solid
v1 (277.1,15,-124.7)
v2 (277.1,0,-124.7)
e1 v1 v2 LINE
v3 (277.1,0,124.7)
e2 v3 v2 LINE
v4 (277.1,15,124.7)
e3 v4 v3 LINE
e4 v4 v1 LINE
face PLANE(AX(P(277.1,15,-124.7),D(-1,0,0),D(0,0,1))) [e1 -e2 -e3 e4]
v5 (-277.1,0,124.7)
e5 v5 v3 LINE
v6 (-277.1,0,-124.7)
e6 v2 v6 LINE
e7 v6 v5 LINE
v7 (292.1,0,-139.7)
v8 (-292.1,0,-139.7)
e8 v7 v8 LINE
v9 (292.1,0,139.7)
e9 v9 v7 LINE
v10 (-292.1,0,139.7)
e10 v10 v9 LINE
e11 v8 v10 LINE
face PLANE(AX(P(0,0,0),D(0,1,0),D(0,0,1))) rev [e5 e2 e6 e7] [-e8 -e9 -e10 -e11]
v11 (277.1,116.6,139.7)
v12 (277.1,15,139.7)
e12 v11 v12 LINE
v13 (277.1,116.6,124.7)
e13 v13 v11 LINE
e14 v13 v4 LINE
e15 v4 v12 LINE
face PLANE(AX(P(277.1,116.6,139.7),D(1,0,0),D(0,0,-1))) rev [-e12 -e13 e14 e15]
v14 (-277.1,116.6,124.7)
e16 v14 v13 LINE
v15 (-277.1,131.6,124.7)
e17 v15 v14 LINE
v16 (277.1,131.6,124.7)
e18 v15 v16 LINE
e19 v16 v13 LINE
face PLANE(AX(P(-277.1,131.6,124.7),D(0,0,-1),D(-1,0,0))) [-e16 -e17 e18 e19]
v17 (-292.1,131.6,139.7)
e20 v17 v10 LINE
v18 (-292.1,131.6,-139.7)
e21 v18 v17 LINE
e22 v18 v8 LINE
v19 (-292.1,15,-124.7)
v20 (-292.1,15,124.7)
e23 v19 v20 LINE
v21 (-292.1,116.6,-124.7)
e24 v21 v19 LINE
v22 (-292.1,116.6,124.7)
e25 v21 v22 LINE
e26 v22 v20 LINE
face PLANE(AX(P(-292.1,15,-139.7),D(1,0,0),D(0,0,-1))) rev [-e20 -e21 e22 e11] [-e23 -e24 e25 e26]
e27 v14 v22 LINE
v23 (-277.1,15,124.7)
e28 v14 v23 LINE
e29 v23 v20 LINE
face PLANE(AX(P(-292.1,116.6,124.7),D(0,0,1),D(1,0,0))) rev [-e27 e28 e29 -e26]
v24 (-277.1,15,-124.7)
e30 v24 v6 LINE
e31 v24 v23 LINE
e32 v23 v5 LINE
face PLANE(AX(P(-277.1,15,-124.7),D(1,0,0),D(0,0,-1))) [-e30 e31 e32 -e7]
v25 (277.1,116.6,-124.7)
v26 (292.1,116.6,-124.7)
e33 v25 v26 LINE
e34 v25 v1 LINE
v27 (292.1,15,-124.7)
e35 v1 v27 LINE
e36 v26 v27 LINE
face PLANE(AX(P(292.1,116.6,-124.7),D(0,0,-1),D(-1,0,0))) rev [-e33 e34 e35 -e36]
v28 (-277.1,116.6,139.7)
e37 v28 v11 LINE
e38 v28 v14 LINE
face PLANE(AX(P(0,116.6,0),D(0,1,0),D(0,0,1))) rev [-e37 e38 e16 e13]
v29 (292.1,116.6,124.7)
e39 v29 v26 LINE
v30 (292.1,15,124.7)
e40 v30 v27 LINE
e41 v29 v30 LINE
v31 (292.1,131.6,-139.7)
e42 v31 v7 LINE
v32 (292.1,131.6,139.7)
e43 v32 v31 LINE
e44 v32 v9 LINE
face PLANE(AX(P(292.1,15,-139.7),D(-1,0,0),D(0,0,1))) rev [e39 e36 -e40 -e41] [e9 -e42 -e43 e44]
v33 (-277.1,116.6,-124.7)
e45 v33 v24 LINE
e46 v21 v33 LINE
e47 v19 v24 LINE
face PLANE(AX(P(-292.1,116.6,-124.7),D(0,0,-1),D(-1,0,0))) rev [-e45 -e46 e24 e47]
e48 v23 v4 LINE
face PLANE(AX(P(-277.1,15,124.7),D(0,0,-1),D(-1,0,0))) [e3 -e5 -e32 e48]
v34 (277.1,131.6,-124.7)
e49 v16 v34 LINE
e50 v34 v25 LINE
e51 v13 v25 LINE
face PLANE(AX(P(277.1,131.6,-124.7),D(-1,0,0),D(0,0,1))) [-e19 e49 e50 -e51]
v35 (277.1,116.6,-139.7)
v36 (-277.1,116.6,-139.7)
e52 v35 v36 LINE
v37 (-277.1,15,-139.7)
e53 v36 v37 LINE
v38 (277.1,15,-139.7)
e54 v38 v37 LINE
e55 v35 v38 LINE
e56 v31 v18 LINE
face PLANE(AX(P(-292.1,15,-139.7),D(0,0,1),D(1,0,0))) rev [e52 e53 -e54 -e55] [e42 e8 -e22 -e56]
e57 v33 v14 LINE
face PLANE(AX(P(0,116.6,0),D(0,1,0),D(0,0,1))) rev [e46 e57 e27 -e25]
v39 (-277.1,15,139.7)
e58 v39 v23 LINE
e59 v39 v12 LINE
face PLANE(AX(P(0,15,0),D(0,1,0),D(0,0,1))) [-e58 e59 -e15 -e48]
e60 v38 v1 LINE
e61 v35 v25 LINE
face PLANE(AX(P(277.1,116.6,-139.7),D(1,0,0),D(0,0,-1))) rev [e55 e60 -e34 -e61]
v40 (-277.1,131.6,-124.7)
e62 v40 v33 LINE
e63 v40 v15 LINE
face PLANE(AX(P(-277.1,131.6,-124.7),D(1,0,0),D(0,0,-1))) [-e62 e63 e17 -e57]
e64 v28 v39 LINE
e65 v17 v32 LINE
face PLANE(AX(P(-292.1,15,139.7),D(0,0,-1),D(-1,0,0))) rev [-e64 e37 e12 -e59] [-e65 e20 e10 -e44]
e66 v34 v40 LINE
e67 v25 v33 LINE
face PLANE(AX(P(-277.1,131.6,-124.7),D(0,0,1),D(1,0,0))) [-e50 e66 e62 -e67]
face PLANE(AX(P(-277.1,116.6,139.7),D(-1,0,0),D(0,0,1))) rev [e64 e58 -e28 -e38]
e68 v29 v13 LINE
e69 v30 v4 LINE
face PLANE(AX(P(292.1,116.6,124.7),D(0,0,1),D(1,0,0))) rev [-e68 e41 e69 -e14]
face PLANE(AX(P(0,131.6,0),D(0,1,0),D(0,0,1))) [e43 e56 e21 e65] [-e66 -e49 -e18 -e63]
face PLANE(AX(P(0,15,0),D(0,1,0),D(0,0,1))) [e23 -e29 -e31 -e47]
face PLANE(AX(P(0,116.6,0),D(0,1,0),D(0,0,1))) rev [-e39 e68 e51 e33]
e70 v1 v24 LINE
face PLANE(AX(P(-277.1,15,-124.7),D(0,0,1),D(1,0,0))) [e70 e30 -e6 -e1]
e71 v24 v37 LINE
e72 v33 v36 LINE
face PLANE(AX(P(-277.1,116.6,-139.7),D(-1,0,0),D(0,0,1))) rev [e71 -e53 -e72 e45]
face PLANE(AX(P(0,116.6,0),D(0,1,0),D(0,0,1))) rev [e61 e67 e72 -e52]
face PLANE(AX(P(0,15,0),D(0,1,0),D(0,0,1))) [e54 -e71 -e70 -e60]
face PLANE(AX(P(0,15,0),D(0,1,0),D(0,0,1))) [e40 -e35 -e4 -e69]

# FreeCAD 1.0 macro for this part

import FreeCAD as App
import Part
import Sketcher


def add_polygon(sketch, points):
    """Adds a closed chain of lines whose ends are joined by coincident constraints."""
    first, n = sketch.GeometryCount, len(points)
    for a, b in zip(points, points[1:] + points[:1]):
        sketch.addGeometry(Part.LineSegment(App.Vector(*a, 0), App.Vector(*b, 0)), False)
    for i in range(n):
        sketch.addConstraint(Sketcher.Constraint("Coincident", first + i, 2, first + (i + 1) % n, 1))

doc = App.newDocument("Part")
body = doc.addObject("PartDesign::Body", "Body")

sketch1 = body.newObject("Sketcher::SketchObject", "Sketch")
sketch1.AttachmentSupport = (doc.getObject("XZ_Plane"), [""])
sketch1.MapMode = "FlatFace"
add_polygon(sketch1, [(-292.1, -139.7), (-292.1, 139.7), (292.1, 139.7), (292.1, -139.7)])
add_polygon(sketch1, [(277.1, 124.7), (-277.1, 124.7), (-277.1, -124.7), (277.1, -124.7)])
sketch1.addConstraint(Sketcher.Constraint("Vertical", 0))
sketch1.addConstraint(Sketcher.Constraint("Horizontal", 1))
sketch1.addConstraint(Sketcher.Constraint("Vertical", 2))
sketch1.addConstraint(Sketcher.Constraint("Horizontal", 3))
sketch1.addConstraint(Sketcher.Constraint("Horizontal", 4))
sketch1.addConstraint(Sketcher.Constraint("Vertical", 5))
sketch1.addConstraint(Sketcher.Constraint("Horizontal", 6))
sketch1.addConstraint(Sketcher.Constraint("Vertical", 7))
sketch1.addConstraint(Sketcher.Constraint("Symmetric", 0, 2, 2, 2, -1, 1))
sketch1.addConstraint(Sketcher.Constraint("Symmetric", 4, 2, 6, 2, -1, 1))
sketch1.addConstraint(Sketcher.Constraint("DistanceX", 1, 1, 1, 2, 584.2))
sketch1.addConstraint(Sketcher.Constraint("DistanceX", 4, 2, 4, 1, 554.2))
sketch1.addConstraint(Sketcher.Constraint("DistanceY", 0, 1, 0, 2, 279.4))
sketch1.addConstraint(Sketcher.Constraint("DistanceY", 5, 2, 5, 1, 249.4))
pad1 = body.newObject("PartDesign::Pad", "Pad")
pad1.Profile = sketch1
pad1.Length = 15
pad1.Reversed = True

sketch2 = body.newObject("Sketcher::SketchObject", "Sketch001")
sketch2.AttachmentSupport = (doc.getObject("XZ_Plane"), [""])
sketch2.MapMode = "FlatFace"
sketch2.AttachmentOffset = App.Placement(App.Vector(0, 0, -15), App.Rotation())
add_polygon(sketch2, [(-292.1, -139.7), (-292.1, -124.7), (-277.1, -124.7), (-277.1, -139.7)])
add_polygon(sketch2, [(-292.1, 124.7), (-292.1, 139.7), (-277.1, 139.7), (-277.1, 124.7)])
add_polygon(sketch2, [(277.1, 124.7), (277.1, 139.7), (292.1, 139.7), (292.1, 124.7)])
add_polygon(sketch2, [(277.1, -139.7), (277.1, -124.7), (292.1, -124.7), (292.1, -139.7)])
sketch2.addConstraint(Sketcher.Constraint("Vertical", 0))
sketch2.addConstraint(Sketcher.Constraint("Horizontal", 1))
sketch2.addConstraint(Sketcher.Constraint("Vertical", 2))
sketch2.addConstraint(Sketcher.Constraint("Horizontal", 3))
sketch2.addConstraint(Sketcher.Constraint("Vertical", 4))
sketch2.addConstraint(Sketcher.Constraint("Horizontal", 5))
sketch2.addConstraint(Sketcher.Constraint("Vertical", 6))
sketch2.addConstraint(Sketcher.Constraint("Horizontal", 7))
sketch2.addConstraint(Sketcher.Constraint("Vertical", 8))
sketch2.addConstraint(Sketcher.Constraint("Horizontal", 9))
sketch2.addConstraint(Sketcher.Constraint("Vertical", 10))
sketch2.addConstraint(Sketcher.Constraint("Horizontal", 11))
sketch2.addConstraint(Sketcher.Constraint("Vertical", 12))
sketch2.addConstraint(Sketcher.Constraint("Horizontal", 13))
sketch2.addConstraint(Sketcher.Constraint("Vertical", 14))
sketch2.addConstraint(Sketcher.Constraint("Horizontal", 15))
sketch2.addConstraint(Sketcher.Constraint("Symmetric", 2, 2, 8, 2, -1, 1))
sketch2.addConstraint(Sketcher.Constraint("Symmetric", 0, 2, 10, 2, -1, 1))
sketch2.addConstraint(Sketcher.Constraint("Symmetric", 6, 2, 12, 2, -1, 1))
sketch2.addConstraint(Sketcher.Constraint("Symmetric", 4, 2, 14, 2, -1, 1))
sketch2.addConstraint(Sketcher.Constraint("Symmetric", 5, 2, 8, 2, -2))
sketch2.addConstraint(Sketcher.Constraint("Symmetric", 7, 2, 10, 2, -2))
sketch2.addConstraint(Sketcher.Constraint("Equal", 15, 0))
sketch2.addConstraint(Sketcher.Constraint("DistanceX", 1, 1, 1, 2, 15.0))
sketch2.addConstraint(Sketcher.Constraint("DistanceX", 0, 2, -1, 1, 292.1))
sketch2.addConstraint(Sketcher.Constraint("DistanceY", 0, 2, -1, 1, 124.7))
pad2 = body.newObject("PartDesign::Pad", "Pad001")
pad2.Profile = sketch2
pad2.Length = 101.6
pad2.Reversed = True

sketch3 = body.newObject("Sketcher::SketchObject", "Sketch002")
sketch3.AttachmentSupport = (doc.getObject("XZ_Plane"), [""])
sketch3.MapMode = "FlatFace"
sketch3.AttachmentOffset = App.Placement(App.Vector(0, 0, -116.6), App.Rotation())
add_polygon(sketch3, [(-292.1, -139.7), (-292.1, 139.7), (292.1, 139.7), (292.1, -139.7)])
add_polygon(sketch3, [(277.1, 124.7), (-277.1, 124.7), (-277.1, -124.7), (277.1, -124.7)])
sketch3.addConstraint(Sketcher.Constraint("Vertical", 0))
sketch3.addConstraint(Sketcher.Constraint("Horizontal", 1))
sketch3.addConstraint(Sketcher.Constraint("Vertical", 2))
sketch3.addConstraint(Sketcher.Constraint("Horizontal", 3))
sketch3.addConstraint(Sketcher.Constraint("Horizontal", 4))
sketch3.addConstraint(Sketcher.Constraint("Vertical", 5))
sketch3.addConstraint(Sketcher.Constraint("Horizontal", 6))
sketch3.addConstraint(Sketcher.Constraint("Vertical", 7))
sketch3.addConstraint(Sketcher.Constraint("Symmetric", 0, 2, 2, 2, -1, 1))
sketch3.addConstraint(Sketcher.Constraint("Symmetric", 4, 2, 6, 2, -1, 1))
sketch3.addConstraint(Sketcher.Constraint("DistanceX", 1, 1, 1, 2, 584.2))
sketch3.addConstraint(Sketcher.Constraint("DistanceX", 4, 2, 4, 1, 554.2))
sketch3.addConstraint(Sketcher.Constraint("DistanceY", 0, 1, 0, 2, 279.4))
sketch3.addConstraint(Sketcher.Constraint("DistanceY", 5, 2, 5, 1, 249.4))
pad3 = body.newObject("PartDesign::Pad", "Pad002")
pad3.Profile = sketch3
pad3.Length = 15
pad3.Reversed = True

doc.recompute()
